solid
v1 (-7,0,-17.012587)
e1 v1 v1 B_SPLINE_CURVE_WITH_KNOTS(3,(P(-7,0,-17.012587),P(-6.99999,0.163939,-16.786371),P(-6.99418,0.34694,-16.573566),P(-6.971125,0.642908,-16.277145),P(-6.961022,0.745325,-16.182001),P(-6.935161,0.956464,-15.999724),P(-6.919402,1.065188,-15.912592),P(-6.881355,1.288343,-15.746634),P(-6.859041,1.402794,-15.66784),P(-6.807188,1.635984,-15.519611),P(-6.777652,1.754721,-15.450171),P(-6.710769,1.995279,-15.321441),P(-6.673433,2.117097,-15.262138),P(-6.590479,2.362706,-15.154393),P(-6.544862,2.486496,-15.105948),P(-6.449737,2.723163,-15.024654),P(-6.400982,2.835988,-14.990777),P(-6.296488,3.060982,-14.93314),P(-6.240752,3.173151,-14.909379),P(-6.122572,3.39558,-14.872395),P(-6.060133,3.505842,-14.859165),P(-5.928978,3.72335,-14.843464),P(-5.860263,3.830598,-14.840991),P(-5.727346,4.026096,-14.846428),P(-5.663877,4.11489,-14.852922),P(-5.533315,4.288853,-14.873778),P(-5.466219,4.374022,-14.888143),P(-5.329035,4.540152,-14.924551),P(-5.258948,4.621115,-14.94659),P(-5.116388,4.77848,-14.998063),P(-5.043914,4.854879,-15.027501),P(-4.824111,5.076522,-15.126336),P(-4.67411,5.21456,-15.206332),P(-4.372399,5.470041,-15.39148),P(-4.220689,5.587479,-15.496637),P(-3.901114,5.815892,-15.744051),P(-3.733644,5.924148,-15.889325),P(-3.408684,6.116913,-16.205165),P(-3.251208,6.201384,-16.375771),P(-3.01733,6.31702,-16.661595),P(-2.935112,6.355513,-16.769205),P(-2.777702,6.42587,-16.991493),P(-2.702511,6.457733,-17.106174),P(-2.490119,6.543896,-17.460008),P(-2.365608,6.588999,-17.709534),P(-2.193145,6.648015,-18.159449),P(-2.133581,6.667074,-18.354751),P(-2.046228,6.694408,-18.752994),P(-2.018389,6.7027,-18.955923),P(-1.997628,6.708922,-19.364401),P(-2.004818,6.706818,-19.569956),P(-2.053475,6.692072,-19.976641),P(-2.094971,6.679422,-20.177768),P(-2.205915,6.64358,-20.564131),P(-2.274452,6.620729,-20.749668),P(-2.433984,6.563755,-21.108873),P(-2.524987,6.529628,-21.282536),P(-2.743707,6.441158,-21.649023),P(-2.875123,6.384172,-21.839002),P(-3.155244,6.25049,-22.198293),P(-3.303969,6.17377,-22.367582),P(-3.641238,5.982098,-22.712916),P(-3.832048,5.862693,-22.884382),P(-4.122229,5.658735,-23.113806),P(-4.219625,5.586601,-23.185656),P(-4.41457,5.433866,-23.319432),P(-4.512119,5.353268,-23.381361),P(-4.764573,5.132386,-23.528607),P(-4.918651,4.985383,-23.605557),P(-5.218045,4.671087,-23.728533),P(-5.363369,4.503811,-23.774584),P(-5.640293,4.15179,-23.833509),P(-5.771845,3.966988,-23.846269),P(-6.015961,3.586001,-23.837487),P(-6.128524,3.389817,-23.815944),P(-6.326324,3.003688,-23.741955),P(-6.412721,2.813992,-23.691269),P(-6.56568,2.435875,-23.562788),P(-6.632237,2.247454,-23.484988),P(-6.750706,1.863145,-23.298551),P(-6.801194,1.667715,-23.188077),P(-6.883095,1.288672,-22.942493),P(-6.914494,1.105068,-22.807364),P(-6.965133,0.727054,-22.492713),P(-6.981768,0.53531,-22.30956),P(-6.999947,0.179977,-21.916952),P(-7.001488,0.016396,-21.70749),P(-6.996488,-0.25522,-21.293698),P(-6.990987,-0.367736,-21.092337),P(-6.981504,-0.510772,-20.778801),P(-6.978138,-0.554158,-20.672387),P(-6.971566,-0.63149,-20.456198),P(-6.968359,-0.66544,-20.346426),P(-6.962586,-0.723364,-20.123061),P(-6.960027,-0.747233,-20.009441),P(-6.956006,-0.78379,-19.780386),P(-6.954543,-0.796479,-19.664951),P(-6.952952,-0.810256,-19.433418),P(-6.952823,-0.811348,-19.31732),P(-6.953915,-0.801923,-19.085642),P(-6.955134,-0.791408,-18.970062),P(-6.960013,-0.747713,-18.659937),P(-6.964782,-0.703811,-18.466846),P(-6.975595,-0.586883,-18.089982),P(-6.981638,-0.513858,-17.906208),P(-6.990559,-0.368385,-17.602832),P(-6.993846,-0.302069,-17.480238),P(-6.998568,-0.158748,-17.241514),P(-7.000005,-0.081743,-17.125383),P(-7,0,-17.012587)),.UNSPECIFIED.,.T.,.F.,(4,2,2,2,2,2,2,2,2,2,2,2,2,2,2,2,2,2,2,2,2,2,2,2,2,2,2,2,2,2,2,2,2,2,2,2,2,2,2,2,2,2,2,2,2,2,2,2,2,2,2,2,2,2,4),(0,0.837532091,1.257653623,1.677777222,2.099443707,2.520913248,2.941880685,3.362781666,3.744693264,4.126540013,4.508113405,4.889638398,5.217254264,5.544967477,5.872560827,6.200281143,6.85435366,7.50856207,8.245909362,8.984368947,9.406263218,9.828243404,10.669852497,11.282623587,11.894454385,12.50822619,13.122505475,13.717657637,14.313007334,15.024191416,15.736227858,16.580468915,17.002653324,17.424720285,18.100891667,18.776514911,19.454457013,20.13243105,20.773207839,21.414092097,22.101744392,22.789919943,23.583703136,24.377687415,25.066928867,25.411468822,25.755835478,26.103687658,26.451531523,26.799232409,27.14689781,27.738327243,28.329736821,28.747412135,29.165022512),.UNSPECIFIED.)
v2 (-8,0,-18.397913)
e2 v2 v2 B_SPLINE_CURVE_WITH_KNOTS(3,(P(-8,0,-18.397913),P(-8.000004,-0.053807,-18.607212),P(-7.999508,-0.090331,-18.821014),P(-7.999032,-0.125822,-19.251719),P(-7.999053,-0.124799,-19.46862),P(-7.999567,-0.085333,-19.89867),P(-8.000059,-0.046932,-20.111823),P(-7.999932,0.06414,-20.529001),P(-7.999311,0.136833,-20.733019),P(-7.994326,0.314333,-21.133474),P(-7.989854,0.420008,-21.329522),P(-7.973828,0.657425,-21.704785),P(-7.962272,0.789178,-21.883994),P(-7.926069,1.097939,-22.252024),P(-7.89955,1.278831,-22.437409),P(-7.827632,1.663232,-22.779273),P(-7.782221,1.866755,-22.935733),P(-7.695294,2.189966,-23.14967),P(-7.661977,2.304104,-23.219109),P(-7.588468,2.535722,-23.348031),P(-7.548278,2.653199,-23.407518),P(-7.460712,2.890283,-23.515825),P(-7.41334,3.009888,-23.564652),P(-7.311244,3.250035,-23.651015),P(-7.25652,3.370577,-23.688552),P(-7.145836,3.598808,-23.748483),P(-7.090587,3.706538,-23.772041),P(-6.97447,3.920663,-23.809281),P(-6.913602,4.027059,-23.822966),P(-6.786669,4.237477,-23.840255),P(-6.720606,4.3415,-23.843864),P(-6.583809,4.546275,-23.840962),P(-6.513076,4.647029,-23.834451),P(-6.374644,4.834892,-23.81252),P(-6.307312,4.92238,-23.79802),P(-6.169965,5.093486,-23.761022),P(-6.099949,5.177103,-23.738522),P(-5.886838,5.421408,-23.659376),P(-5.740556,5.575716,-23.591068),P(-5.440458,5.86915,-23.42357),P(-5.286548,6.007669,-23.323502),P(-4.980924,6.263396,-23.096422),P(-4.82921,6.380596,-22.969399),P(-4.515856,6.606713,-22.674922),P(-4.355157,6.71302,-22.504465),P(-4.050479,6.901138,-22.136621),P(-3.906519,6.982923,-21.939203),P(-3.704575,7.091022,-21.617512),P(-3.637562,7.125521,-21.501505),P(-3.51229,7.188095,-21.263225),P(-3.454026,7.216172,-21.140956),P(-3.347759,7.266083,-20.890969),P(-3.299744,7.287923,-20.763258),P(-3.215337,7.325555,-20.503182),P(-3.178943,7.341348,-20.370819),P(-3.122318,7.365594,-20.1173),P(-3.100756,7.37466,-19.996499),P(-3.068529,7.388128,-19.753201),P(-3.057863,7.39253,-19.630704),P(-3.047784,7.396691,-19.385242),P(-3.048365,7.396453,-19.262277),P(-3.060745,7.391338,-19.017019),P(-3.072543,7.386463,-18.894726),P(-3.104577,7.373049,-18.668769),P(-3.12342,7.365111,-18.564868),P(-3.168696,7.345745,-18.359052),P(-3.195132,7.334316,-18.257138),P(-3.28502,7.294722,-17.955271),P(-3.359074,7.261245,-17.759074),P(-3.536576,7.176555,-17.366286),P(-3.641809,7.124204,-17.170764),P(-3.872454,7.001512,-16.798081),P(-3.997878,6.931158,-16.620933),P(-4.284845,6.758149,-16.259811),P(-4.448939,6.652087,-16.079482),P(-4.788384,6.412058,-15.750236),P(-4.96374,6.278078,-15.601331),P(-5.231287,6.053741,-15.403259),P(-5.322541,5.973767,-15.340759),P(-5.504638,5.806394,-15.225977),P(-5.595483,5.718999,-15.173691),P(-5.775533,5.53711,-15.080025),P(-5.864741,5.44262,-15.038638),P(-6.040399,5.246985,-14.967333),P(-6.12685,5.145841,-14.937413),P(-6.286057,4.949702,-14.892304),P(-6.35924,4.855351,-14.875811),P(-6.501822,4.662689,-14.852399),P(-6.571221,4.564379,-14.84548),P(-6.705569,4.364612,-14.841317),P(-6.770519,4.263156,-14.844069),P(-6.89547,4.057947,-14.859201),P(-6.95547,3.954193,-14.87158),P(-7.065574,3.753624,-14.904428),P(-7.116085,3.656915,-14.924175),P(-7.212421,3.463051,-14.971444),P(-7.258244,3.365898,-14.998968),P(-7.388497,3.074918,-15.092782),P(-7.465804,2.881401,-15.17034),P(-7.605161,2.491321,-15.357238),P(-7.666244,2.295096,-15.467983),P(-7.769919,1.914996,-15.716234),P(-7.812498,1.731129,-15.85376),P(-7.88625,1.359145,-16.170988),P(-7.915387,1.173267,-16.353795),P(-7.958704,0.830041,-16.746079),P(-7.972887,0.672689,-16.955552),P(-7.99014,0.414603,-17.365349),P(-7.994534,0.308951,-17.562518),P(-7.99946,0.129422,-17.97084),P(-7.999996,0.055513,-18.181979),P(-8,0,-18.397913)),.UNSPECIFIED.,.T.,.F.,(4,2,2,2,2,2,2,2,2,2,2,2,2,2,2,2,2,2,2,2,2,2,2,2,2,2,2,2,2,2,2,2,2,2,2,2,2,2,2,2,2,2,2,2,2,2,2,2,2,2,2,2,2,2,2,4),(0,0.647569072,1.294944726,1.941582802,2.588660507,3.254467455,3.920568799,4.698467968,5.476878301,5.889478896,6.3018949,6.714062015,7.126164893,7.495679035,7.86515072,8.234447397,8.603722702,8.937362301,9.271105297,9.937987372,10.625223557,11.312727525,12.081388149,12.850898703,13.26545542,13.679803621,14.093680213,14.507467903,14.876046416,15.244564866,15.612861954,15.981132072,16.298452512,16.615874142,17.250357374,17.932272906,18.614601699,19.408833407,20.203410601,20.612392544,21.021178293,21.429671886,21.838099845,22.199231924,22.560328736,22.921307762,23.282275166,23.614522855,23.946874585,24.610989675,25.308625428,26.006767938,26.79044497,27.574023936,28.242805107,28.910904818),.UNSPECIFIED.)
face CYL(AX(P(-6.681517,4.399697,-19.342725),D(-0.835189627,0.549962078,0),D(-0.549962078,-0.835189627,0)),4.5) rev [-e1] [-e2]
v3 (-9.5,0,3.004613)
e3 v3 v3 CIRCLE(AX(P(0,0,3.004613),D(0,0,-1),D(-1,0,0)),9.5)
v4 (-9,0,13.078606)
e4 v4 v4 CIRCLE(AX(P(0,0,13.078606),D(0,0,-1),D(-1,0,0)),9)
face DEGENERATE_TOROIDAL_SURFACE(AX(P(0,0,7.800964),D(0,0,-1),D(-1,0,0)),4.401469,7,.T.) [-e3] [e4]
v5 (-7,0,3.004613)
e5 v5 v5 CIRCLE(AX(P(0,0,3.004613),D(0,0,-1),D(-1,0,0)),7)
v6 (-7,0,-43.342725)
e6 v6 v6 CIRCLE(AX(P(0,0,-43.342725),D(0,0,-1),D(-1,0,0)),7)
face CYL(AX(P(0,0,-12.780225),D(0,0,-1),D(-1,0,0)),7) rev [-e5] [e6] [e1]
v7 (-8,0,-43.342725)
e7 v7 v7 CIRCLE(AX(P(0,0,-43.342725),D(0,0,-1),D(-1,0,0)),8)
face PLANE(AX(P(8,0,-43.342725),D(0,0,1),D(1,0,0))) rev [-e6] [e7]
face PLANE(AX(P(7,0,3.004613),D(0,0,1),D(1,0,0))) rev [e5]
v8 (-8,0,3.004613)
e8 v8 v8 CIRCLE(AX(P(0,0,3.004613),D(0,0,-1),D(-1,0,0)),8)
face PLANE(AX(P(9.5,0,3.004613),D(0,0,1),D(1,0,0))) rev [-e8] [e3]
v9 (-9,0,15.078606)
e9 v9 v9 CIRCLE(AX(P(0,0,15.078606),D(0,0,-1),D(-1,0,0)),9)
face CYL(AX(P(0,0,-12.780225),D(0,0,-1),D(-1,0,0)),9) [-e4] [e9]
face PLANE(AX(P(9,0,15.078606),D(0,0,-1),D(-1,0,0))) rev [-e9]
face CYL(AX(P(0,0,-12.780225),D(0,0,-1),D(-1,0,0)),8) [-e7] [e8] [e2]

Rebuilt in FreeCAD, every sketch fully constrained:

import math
import FreeCAD as App
import Part
import Sketcher

V = App.Vector
Q = App.Units.Quantity

doc = App.newDocument("Part")
body = doc.addObject("PartDesign::Body", "Body")

# Sketch on XZ plane
sketch1 = body.newObject("Sketcher::SketchObject", "Sketch")
sketch1.AttachmentSupport = (doc.getObject("XZ_Plane"), [""])
sketch1.MapMode = "FlatFace"
sketch1.addGeometry([
    Part.LineSegment(V(7, -43.3, 0), V(7, 3, 0)),  # 0
    Part.LineSegment(V(7, 3, 0), V(0, 3, 0)),  # 1
    Part.LineSegment(V(0, 3, 0), V(0, 15.1, 0)),  # 2
    Part.LineSegment(V(0, 15.1, 0), V(9, 15.1, 0)),  # 3
    Part.LineSegment(V(9, 15.1, 0), V(9, 13.1, 0)),  # 4
    Part.ArcOfCircle(Part.Circle(V(4.4, 7.8, 0), V(0, 0, 1), 7), math.radians(-43), math.radians(49)),  # 5
    Part.LineSegment(V(9.5, 3, 0), V(8, 3, 0)),  # 6
    Part.LineSegment(V(8, 3, 0), V(8, -43.3, 0)),  # 7
    Part.LineSegment(V(8, -43.3, 0), V(7, -43.3, 0)),  # 8
], False)
sketch1.addConstraint([
    Sketcher.Constraint("Coincident", 0, 2, 1, 1),
    Sketcher.Constraint("Coincident", 1, 2, 2, 1),
    Sketcher.Constraint("Coincident", 2, 2, 3, 1),
    Sketcher.Constraint("Coincident", 3, 2, 4, 1),
    Sketcher.Constraint("Coincident", 4, 2, 5, 2),
    Sketcher.Constraint("Coincident", 5, 1, 6, 1),
    Sketcher.Constraint("Coincident", 6, 2, 7, 1),
    Sketcher.Constraint("Coincident", 7, 2, 8, 1),
    Sketcher.Constraint("Coincident", 8, 2, 0, 1),
    Sketcher.Constraint("Vertical", 0),
    Sketcher.Constraint("Horizontal", 1),
    Sketcher.Constraint("Vertical", 2),
    Sketcher.Constraint("Horizontal", 3),
    Sketcher.Constraint("Vertical", 4),
    Sketcher.Constraint("Horizontal", 6),
    Sketcher.Constraint("Vertical", 7),
    Sketcher.Constraint("Horizontal", 8),
    Sketcher.Constraint("PointOnObject", 1, 2, -2),
    Sketcher.Constraint("Horizontal", 1, 2, 5, 1),
    Sketcher.Constraint("Radius", 5, Q("7 mm")),
    Sketcher.Constraint("DistanceX", 1, 2, 1, 1, Q("7 mm")),
    Sketcher.Constraint("DistanceX", 3, 1, 3, 2, Q("9 mm")),
    Sketcher.Constraint("DistanceX", 8, 2, 8, 1, Q("1 mm")),
    Sketcher.Constraint("DistanceY", 4, 2, 4, 1, Q("2 mm")),
    Sketcher.Constraint("DistanceX", 6, 2, 6, 1, Q("1.5 mm")),
    Sketcher.Constraint("DistanceY", 0, 1, 0, 2, Q("46.347338 mm")),
    Sketcher.Constraint("DistanceY", 2, 1, 2, 2, Q("12.073993 mm")),
    Sketcher.Constraint("DistanceY", -1, 1, 5, 3, Q("7.800964 mm")),
])
revolution = body.newObject("PartDesign::Revolution", "Revolution")
revolution.Profile = sketch1
revolution.ReferenceAxis = (sketch1, ["V_Axis"])
revolution.Angle = 360

# Sketch on an angled plane
sketch2 = body.newObject("Sketcher::SketchObject", "Sketch001")
sketch2.Placement = App.Placement(V(-6.681517, 4.399697, -19.342725), App.Rotation(V(-0.549962078, -0.835189627, 0), V(0, 0, 1), V(-0.835189627, 0.549962078, 0), "ZXY"))
sketch2.addGeometry(Part.Circle(V(0, 0, 0), V(0, 0, 1), 4.5), False)
sketch2.addConstraint([
    Sketcher.Constraint("Coincident", 0, 3, -1, 1),
    Sketcher.Constraint("Diameter", 0, Q("9 mm")),
])
pocket1 = body.newObject("PartDesign::Pocket", "Pocket")
pocket1.Profile = sketch2
pocket1.Type = "UpToFirst"

doc.recompute()
